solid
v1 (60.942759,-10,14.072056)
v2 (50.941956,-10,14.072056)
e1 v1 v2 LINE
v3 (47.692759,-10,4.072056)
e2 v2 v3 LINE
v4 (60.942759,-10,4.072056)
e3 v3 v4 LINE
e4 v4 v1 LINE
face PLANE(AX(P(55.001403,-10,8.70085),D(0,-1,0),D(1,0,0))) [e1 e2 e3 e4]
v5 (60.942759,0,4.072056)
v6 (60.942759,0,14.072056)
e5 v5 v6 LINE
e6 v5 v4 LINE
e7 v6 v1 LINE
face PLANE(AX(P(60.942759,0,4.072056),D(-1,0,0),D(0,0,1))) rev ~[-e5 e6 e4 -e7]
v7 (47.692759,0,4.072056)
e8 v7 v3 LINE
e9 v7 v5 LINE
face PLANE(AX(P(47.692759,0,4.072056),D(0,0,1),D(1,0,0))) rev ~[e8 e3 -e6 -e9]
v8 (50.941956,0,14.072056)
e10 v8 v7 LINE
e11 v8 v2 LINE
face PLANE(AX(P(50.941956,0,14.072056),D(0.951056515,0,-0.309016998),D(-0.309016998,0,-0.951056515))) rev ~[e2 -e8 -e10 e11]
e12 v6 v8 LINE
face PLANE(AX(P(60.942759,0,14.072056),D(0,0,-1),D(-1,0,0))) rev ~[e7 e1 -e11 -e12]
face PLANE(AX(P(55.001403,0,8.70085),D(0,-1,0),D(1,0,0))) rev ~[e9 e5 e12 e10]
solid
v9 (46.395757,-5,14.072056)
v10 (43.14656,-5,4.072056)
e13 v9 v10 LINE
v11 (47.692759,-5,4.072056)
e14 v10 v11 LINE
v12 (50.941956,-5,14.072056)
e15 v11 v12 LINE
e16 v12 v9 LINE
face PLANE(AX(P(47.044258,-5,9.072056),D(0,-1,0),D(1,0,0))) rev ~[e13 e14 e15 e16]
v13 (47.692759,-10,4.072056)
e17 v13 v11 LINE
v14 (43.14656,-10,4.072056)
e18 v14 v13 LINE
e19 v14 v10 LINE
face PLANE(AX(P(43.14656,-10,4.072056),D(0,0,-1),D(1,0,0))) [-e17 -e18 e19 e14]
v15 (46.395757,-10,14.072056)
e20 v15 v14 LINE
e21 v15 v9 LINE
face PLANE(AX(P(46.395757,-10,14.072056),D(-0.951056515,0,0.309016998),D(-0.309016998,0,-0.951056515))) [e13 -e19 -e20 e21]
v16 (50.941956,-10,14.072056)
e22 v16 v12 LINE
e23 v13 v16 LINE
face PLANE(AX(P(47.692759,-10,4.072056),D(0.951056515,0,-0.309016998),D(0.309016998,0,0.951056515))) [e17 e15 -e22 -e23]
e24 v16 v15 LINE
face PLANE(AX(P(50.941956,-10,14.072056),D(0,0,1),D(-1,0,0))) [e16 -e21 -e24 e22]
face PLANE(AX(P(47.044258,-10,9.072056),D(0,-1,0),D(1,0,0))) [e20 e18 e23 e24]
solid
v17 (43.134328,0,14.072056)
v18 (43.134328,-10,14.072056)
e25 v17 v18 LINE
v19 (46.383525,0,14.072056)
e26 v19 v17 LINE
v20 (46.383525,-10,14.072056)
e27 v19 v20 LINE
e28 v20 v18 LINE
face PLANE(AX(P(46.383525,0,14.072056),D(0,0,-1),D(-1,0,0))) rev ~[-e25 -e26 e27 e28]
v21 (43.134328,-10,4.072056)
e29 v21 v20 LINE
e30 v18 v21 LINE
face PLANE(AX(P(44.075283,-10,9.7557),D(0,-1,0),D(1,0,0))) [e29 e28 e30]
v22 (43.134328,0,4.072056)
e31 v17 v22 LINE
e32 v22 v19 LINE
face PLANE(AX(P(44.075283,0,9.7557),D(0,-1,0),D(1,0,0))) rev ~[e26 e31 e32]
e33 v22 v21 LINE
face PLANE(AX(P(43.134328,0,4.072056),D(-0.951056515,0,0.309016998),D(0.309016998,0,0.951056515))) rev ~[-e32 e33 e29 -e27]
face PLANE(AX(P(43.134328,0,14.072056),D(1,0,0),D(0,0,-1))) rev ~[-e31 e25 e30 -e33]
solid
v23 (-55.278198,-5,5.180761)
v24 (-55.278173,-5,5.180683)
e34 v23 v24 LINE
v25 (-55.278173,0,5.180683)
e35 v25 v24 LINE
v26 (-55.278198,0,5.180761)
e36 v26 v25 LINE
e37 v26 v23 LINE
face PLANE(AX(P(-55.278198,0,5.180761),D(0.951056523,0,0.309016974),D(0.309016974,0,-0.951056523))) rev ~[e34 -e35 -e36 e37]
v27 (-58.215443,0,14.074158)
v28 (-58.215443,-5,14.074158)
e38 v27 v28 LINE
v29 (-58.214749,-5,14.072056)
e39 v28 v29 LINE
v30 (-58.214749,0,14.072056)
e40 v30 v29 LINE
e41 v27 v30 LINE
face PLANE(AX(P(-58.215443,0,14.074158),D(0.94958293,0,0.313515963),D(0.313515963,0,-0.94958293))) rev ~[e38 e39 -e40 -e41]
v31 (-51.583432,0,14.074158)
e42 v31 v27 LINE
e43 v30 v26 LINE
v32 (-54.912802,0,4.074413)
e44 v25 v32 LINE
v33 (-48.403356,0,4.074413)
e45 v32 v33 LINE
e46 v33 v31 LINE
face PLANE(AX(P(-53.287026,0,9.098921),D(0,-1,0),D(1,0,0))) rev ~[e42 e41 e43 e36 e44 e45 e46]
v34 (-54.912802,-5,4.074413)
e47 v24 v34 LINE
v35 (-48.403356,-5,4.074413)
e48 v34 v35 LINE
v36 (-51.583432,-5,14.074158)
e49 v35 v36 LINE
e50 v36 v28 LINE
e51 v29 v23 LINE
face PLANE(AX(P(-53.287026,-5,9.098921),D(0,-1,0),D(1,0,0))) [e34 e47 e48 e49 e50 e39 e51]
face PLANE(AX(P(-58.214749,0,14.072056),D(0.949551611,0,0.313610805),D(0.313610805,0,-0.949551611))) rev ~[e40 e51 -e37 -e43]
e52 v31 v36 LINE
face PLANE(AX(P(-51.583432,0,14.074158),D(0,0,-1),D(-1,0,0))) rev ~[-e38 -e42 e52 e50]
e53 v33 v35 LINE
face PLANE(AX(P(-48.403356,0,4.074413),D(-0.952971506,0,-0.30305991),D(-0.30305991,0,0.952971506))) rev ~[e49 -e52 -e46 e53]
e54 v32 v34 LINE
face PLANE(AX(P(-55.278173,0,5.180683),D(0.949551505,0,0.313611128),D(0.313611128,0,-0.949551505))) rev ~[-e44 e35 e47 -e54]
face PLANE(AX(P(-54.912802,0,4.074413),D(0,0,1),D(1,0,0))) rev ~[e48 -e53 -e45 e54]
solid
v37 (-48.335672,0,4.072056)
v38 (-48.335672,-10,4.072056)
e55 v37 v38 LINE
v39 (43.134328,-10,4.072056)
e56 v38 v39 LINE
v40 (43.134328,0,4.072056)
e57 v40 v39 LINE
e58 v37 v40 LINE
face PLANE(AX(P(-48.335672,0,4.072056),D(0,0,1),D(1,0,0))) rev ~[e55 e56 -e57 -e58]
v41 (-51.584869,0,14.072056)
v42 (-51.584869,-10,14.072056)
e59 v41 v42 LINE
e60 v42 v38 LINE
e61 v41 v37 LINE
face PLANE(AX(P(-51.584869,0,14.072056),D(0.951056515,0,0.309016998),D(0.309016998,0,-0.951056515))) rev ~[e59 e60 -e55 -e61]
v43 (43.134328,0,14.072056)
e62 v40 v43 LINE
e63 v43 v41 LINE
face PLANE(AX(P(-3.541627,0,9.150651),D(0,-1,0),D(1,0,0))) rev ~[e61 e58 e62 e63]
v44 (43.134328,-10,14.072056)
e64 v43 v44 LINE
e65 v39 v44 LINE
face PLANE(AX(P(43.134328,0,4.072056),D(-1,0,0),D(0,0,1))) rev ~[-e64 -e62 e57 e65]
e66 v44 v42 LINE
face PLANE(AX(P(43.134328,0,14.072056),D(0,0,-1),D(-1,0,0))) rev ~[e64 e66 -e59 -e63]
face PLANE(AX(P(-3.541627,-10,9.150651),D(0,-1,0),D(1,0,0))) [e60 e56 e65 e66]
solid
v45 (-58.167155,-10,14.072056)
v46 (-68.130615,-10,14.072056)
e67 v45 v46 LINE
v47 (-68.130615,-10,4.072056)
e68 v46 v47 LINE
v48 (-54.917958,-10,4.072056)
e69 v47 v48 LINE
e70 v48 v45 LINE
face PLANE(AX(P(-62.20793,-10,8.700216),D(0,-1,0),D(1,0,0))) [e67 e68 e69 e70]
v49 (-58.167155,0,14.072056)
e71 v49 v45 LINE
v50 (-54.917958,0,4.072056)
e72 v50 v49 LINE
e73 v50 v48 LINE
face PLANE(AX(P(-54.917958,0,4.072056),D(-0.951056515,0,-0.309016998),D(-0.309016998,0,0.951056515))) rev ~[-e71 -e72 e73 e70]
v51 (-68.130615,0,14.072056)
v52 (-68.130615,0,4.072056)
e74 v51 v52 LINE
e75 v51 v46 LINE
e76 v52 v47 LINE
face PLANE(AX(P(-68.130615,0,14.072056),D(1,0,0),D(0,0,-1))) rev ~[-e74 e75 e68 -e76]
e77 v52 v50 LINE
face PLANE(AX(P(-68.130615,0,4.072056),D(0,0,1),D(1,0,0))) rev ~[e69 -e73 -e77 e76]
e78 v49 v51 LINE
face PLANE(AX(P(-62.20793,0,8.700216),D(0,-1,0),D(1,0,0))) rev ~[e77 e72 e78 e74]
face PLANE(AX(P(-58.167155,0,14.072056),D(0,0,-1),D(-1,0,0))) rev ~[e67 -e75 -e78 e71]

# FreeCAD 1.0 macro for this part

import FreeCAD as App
import Part
import Sketcher
from FreeCAD import Vector
Q = App.Units.Quantity

doc = App.newDocument("Part")
body = doc.addObject("PartDesign::Body", "Body")
body.AllowCompound = True

sketch1 = body.newObject("Sketcher::SketchObject", "Sketch")
sketch1.AttachmentSupport = (doc.getObject("XZ_Plane"), [""])
sketch1.MapMode = "FlatFace"
sketch1.addGeometry([
    Part.LineSegment(Vector(-58.167155, 14.072056, 0), Vector(-68.130615, 14.072056, 0)),
    Part.LineSegment(Vector(-68.130615, 14.072056, 0), Vector(-68.130615, 4.072056, 0)),
    Part.LineSegment(Vector(-68.130615, 4.072056, 0), Vector(-54.917958, 4.072056, 0)),
    Part.LineSegment(Vector(-54.917958, 4.072056, 0), Vector(-58.167155, 14.072056, 0)),
    Part.LineSegment(Vector(-48.335672, 4.072056, 0), Vector(43.134328, 4.072056, 0)),
    Part.LineSegment(Vector(43.134328, 4.072056, 0), Vector(43.134328, 14.072056, 0)),
    Part.LineSegment(Vector(43.134328, 14.072056, 0), Vector(-51.584869, 14.072056, 0)),
    Part.LineSegment(Vector(-51.584869, 14.072056, 0), Vector(-48.335672, 4.072056, 0)),
], False)
sketch1.addConstraint([
    Sketcher.Constraint("Coincident", 0, 2, 1, 1),
    Sketcher.Constraint("Coincident", 1, 2, 2, 1),
    Sketcher.Constraint("Coincident", 2, 2, 3, 1),
    Sketcher.Constraint("Coincident", 3, 2, 0, 1),
    Sketcher.Constraint("Coincident", 4, 2, 5, 1),
    Sketcher.Constraint("Coincident", 5, 2, 6, 1),
    Sketcher.Constraint("Coincident", 6, 2, 7, 1),
    Sketcher.Constraint("Coincident", 7, 2, 4, 1),
    Sketcher.Constraint("Horizontal", 0),
    Sketcher.Constraint("Vertical", 1),
    Sketcher.Constraint("Horizontal", 2),
    Sketcher.Constraint("Horizontal", 4),
    Sketcher.Constraint("Vertical", 5),
    Sketcher.Constraint("Horizontal", 6),
    Sketcher.Constraint("Parallel", 3, 7),
    Sketcher.Constraint("Horizontal", 2, 2, 4, 2),
    Sketcher.Constraint("Horizontal", 3, 2, 5, 2),
    Sketcher.Constraint("DistanceY", 1, 2, 1, 1, Q("10 mm")),
    Sketcher.Constraint("Angle", 3, Q("108 deg")),
    Sketcher.Constraint("DistanceX", 4, 1, 4, 2, Q("91.47 mm")),
    Sketcher.Constraint("DistanceX", 0, 2, 0, 1, Q("9.96346 mm")),
    Sketcher.Constraint("DistanceX", 6, 2, -1, 1, Q("51.584869 mm")),
    Sketcher.Constraint("DistanceX", 2, 2, 6, 2, Q("3.333089 mm")),
    Sketcher.Constraint("DistanceY", -1, 1, 0, 2, Q("14.072056 mm")),
])
pad1 = body.newObject("PartDesign::Pad", "Pad")
pad1.Profile = sketch1
pad1.Length = 10
body2 = doc.addObject("PartDesign::Body", "Body001")

sketch2 = body2.newObject("Sketcher::SketchObject", "Sketch001")
sketch2.AttachmentSupport = (doc.getObject("XZ_Plane001"), [""])
sketch2.MapMode = "FlatFace"
sketch2.addGeometry([
    Part.LineSegment(Vector(-55.278198, 5.180761, 0), Vector(-55.278173, 5.180683, 0)),
    Part.LineSegment(Vector(-55.278173, 5.180683, 0), Vector(-54.912802, 4.074413, 0)),
    Part.LineSegment(Vector(-54.912802, 4.074413, 0), Vector(-48.403356, 4.074413, 0)),
    Part.LineSegment(Vector(-48.403356, 4.074413, 0), Vector(-51.583432, 14.074158, 0)),
    Part.LineSegment(Vector(-51.583432, 14.074158, 0), Vector(-58.215443, 14.074158, 0)),
    Part.LineSegment(Vector(-58.215443, 14.074158, 0), Vector(-58.214749, 14.072056, 0)),
    Part.LineSegment(Vector(-58.214749, 14.072056, 0), Vector(-55.278198, 5.180761, 0)),
], False)
sketch2.addConstraint([
    Sketcher.Constraint("Coincident", 0, 2, 1, 1),
    Sketcher.Constraint("Coincident", 1, 2, 2, 1),
    Sketcher.Constraint("Coincident", 2, 2, 3, 1),
    Sketcher.Constraint("Coincident", 3, 2, 4, 1),
    Sketcher.Constraint("Coincident", 4, 2, 5, 1),
    Sketcher.Constraint("Coincident", 5, 2, 6, 1),
    Sketcher.Constraint("Coincident", 6, 2, 0, 1),
    Sketcher.Constraint("Horizontal", 2),
    Sketcher.Constraint("Horizontal", 4),
    Sketcher.Constraint("Parallel", 1, 6),
    Sketcher.Constraint("DistanceX", 4, 2, 4, 1, Q("6.632011 mm")),
    Sketcher.Constraint("DistanceX", 6, 2, -1, 1, Q("55.278198 mm")),
    Sketcher.Constraint("Distance", 0, Q("0.000082 mm")),
    Sketcher.Constraint("DistanceX", 2, 1, 2, 2, Q("6.509446 mm")),
    Sketcher.Constraint("DistanceY", -1, 1, 3, 2, Q("14.074158 mm")),
    Sketcher.Constraint("DistanceX", 5, 2, -1, 1, Q("58.214749 mm")),
    Sketcher.Constraint("DistanceY", -1, 1, 6, 2, Q("5.180761 mm")),
    Sketcher.Constraint("DistanceX", 0, 2, 1, 2, Q("0.365371 mm")),
    Sketcher.Constraint("DistanceY", 1, 2, 0, 2, Q("1.10627 mm")),
    Sketcher.Constraint("DistanceX", 0, 2, 3, 2, Q("3.694741 mm")),
    Sketcher.Constraint("Distance", 3, Q("10.493226 mm")),
])
pad2 = body2.newObject("PartDesign::Pad", "Pad001")
pad2.Profile = sketch2
pad2.Length = 5
body3 = doc.addObject("PartDesign::Body", "Body002")
body3.AllowCompound = True

sketch3 = body3.newObject("Sketcher::SketchObject", "Sketch002")
sketch3.AttachmentSupport = (doc.getObject("XZ_Plane002"), [""])
sketch3.MapMode = "FlatFace"
sketch3.addGeometry([
    Part.LineSegment(Vector(60.942759, 4.072056, 0), Vector(60.942759, 14.072056, 0)),
    Part.LineSegment(Vector(60.942759, 14.072056, 0), Vector(50.941956, 14.072056, 0)),
    Part.LineSegment(Vector(50.941956, 14.072056, 0), Vector(47.692759, 4.072056, 0)),
    Part.LineSegment(Vector(47.692759, 4.072056, 0), Vector(60.942759, 4.072056, 0)),
    Part.LineSegment(Vector(46.383525, 14.072056, 0), Vector(43.134328, 14.072056, 0)),
    Part.LineSegment(Vector(43.134328, 14.072056, 0), Vector(43.134328, 4.072056, 0)),
    Part.LineSegment(Vector(43.134328, 4.072056, 0), Vector(46.383525, 14.072056, 0)),
], False)
sketch3.addConstraint([
    Sketcher.Constraint("Coincident", 0, 2, 1, 1),
    Sketcher.Constraint("Coincident", 1, 2, 2, 1),
    Sketcher.Constraint("Coincident", 2, 2, 3, 1),
    Sketcher.Constraint("Coincident", 3, 2, 0, 1),
    Sketcher.Constraint("Coincident", 4, 2, 5, 1),
    Sketcher.Constraint("Coincident", 5, 2, 6, 1),
    Sketcher.Constraint("Coincident", 6, 2, 4, 1),
    Sketcher.Constraint("Vertical", 0),
    Sketcher.Constraint("Horizontal", 1),
    Sketcher.Constraint("Horizontal", 3),
    Sketcher.Constraint("Horizontal", 4),
    Sketcher.Constraint("Vertical", 5),
    Sketcher.Constraint("Parallel", 2, 6),
    Sketcher.Constraint("Horizontal", 1, 2, 4, 2),
    Sketcher.Constraint("Horizontal", 3, 2, 5, 2),
    Sketcher.Constraint("DistanceY", 0, 1, 0, 2, Q("10 mm")),
    Sketcher.Constraint("Angle", 2, Q("-108 deg")),
    Sketcher.Constraint("DistanceX", 3, 1, 3, 2, Q("13.25 mm")),
    Sketcher.Constraint("DistanceX", -1, 1, 0, 2, Q("60.942759 mm")),
    Sketcher.Constraint("DistanceX", 4, 2, 1, 2, Q("7.807628 mm")),
    Sketcher.Constraint("DistanceY", -1, 1, 0, 2, Q("14.072056 mm")),
])
pad3 = body3.newObject("PartDesign::Pad", "Pad002")
pad3.Profile = sketch3
pad3.Length = 10
body4 = doc.addObject("PartDesign::Body", "Body003")

sketch4 = body4.newObject("Sketcher::SketchObject", "Sketch003")
sketch4.AttachmentSupport = (doc.getObject("XZ_Plane003"), [""])
sketch4.MapMode = "FlatFace"
sketch4.AttachmentOffset = App.Placement(Vector(0, 0, 10), App.Rotation())
sketch4.addGeometry([
    Part.LineSegment(Vector(47.692759, 4.072056, 0), Vector(50.941956, 14.072056, 0)),
    Part.LineSegment(Vector(50.941956, 14.072056, 0), Vector(46.395757, 14.072056, 0)),
    Part.LineSegment(Vector(46.395757, 14.072056, 0), Vector(43.14656, 4.072056, 0)),
    Part.LineSegment(Vector(43.14656, 4.072056, 0), Vector(47.692759, 4.072056, 0)),
], False)
sketch4.addConstraint([
    Sketcher.Constraint("Coincident", 0, 2, 1, 1),
    Sketcher.Constraint("Coincident", 1, 2, 2, 1),
    Sketcher.Constraint("Coincident", 2, 2, 3, 1),
    Sketcher.Constraint("Coincident", 3, 2, 0, 1),
    Sketcher.Constraint("Horizontal", 1),
    Sketcher.Constraint("Horizontal", 3),
    Sketcher.Constraint("Parallel", 0, 2),
    Sketcher.Constraint("Angle", 0, Q("72 deg")),
    Sketcher.Constraint("DistanceY", 2, 2, 1, 2, Q("10 mm")),
    Sketcher.Constraint("DistanceX", 1, 2, 1, 1, Q("4.546199 mm")),
    Sketcher.Constraint("DistanceX", -1, 1, 2, 2, Q("43.14656 mm")),
    Sketcher.Constraint("DistanceY", -1, 1, 0, 2, Q("14.072056 mm")),
])
pad4 = body4.newObject("PartDesign::Pad", "Pad003")
pad4.Profile = sketch4
pad4.Length = 5
pad4.Reversed = True

doc.recompute()
